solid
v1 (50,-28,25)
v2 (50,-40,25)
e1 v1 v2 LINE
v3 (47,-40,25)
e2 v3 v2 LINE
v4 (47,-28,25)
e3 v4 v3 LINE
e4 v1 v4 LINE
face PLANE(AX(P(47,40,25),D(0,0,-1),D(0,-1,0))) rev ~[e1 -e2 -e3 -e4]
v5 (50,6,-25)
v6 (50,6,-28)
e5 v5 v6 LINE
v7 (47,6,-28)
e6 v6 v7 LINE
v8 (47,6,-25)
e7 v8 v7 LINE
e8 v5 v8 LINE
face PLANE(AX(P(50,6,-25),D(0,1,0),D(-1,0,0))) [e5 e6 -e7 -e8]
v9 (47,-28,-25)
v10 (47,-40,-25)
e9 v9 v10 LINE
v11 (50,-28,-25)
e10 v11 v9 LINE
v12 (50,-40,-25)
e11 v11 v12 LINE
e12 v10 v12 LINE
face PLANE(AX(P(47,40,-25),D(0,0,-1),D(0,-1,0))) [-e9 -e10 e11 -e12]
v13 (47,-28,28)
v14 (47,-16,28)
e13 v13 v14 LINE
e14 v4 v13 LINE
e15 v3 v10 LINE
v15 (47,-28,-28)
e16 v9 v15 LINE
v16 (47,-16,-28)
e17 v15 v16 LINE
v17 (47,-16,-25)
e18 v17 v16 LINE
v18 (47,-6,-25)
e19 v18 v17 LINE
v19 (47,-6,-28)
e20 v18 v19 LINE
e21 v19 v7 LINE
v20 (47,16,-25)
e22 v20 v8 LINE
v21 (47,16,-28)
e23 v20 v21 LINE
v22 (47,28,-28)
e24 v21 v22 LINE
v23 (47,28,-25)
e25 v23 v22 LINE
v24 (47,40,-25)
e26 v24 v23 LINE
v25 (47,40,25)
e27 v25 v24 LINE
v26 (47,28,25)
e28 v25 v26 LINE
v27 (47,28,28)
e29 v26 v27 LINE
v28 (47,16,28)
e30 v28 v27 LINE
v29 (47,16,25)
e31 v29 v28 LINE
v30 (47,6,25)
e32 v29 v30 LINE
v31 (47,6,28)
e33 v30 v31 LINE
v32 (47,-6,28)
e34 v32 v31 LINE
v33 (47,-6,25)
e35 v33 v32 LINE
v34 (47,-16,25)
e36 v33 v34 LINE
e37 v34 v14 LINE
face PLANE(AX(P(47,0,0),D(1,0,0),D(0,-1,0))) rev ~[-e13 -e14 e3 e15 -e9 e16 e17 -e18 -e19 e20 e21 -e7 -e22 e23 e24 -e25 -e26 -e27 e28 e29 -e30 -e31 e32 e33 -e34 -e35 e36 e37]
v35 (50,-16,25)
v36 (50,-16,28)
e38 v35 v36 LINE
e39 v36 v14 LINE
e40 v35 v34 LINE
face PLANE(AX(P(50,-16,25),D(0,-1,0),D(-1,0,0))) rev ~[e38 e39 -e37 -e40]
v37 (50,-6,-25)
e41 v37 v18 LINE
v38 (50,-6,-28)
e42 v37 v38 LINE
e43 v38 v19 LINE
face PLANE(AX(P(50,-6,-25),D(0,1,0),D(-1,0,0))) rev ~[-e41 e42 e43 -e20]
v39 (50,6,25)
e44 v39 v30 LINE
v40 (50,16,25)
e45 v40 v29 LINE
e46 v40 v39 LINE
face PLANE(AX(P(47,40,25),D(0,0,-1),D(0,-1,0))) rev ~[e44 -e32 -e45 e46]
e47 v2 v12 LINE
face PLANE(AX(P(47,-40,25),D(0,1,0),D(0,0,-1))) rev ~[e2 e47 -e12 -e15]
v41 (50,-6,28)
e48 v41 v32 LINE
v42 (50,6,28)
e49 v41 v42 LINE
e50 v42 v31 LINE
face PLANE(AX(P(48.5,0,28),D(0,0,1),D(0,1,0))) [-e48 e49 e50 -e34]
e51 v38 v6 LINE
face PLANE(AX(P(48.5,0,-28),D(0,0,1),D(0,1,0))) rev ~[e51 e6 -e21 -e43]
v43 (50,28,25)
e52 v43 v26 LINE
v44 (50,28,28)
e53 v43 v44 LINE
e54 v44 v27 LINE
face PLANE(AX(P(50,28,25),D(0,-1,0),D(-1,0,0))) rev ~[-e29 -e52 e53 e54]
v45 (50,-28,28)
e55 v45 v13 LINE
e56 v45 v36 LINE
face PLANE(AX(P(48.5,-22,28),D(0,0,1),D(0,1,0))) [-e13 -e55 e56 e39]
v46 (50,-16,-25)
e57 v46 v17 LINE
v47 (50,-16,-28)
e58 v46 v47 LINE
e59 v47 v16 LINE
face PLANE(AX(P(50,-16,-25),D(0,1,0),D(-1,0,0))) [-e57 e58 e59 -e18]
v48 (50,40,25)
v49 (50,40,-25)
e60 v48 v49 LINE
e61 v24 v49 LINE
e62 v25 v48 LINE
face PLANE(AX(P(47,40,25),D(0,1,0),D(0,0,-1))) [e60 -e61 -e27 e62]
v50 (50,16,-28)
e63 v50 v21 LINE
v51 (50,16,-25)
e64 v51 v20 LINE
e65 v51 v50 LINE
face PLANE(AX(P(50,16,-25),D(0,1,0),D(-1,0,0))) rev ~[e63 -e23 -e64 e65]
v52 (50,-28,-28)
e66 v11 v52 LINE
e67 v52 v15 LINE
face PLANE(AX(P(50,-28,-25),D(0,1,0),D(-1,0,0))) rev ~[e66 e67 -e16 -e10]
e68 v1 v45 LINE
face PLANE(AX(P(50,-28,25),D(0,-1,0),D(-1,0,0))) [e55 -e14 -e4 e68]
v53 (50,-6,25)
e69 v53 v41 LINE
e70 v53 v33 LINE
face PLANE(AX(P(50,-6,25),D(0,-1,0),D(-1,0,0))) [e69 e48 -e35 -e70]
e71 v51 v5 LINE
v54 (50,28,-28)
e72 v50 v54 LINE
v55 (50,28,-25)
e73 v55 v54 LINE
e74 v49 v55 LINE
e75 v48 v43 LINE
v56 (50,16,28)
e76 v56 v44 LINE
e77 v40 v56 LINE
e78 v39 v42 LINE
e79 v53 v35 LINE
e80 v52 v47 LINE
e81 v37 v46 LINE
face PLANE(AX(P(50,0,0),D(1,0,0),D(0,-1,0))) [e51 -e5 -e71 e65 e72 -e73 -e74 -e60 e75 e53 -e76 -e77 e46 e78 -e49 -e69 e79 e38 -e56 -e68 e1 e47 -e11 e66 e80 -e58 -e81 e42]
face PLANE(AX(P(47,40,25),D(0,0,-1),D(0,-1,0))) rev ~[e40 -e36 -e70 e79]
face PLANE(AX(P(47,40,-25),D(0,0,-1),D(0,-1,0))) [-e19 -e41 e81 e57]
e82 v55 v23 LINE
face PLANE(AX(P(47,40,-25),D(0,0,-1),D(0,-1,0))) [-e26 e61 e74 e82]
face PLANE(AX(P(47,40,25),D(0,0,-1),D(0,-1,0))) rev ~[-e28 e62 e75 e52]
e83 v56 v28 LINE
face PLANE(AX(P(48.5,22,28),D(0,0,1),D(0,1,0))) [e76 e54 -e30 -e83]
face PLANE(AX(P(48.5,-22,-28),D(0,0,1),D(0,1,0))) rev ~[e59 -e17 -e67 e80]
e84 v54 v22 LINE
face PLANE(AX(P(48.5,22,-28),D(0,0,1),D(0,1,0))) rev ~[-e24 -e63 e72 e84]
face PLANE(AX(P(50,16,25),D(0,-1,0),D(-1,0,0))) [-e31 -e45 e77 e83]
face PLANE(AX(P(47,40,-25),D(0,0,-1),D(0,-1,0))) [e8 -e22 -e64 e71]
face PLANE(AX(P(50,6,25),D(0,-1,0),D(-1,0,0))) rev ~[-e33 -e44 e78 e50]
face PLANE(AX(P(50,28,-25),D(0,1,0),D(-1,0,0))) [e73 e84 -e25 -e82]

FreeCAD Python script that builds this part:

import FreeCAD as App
import Part
import Sketcher


def add_polygon(sketch, points):
    """Adds a closed chain of lines whose ends are joined by coincident constraints."""
    first, n = sketch.GeometryCount, len(points)
    for a, b in zip(points, points[1:] + points[:1]):
        sketch.addGeometry(Part.LineSegment(App.Vector(*a, 0), App.Vector(*b, 0)), False)
    for i in range(n):
        sketch.addConstraint(Sketcher.Constraint("Coincident", first + i, 2, first + (i + 1) % n, 1))

doc = App.newDocument("Part")
body = doc.addObject("PartDesign::Body", "Body")

# Sketch on YZ plane
sketch1 = body.newObject("Sketcher::SketchObject", "Sketch")
sketch1.AttachmentSupport = (doc.getObject("YZ_Plane"), [""])
sketch1.MapMode = "FlatFace"
sketch1.AttachmentOffset = App.Placement(App.Vector(0, 0, 47), App.Rotation())
add_polygon(sketch1, [(40, -25), (40, 25), (-40, 25), (-40, -25)])  # lines 0-3
sketch1.addConstraint([
    Sketcher.Constraint("Vertical", 0),
    Sketcher.Constraint("Horizontal", 1),
    Sketcher.Constraint("Vertical", 2),
    Sketcher.Constraint("Horizontal", 3),
    Sketcher.Constraint("Symmetric", 0, 2, 2, 2, -1, 1),
    Sketcher.Constraint("DistanceX", 1, 2, 1, 1, 80.0),
    Sketcher.Constraint("DistanceY", 0, 1, 0, 2, 50.0),
])
pad1 = body.newObject("PartDesign::Pad", "Pad")
pad1.Profile = sketch1
pad1.Length = 3

# Sketch on XY plane
sketch2 = body.newObject("Sketcher::SketchObject", "Sketch001")
sketch2.AttachmentSupport = (doc.getObject("XY_Plane"), [""])
sketch2.MapMode = "FlatFace"
sketch2.AttachmentOffset = App.Placement(App.Vector(0, 0, 25), App.Rotation())
add_polygon(sketch2, [(47, -28), (50, -28), (50, -16), (47, -16)])  # lines 0-3
sketch2.addConstraint([
    Sketcher.Constraint("Horizontal", 0),
    Sketcher.Constraint("Vertical", 1),
    Sketcher.Constraint("Horizontal", 2),
    Sketcher.Constraint("Vertical", 3),
    Sketcher.Constraint("DistanceX", 0, 1, 0, 2, 3.0),
    Sketcher.Constraint("DistanceY", 1, 1, 1, 2, 12.0),
    Sketcher.Constraint("DistanceX", -1, 1, 0, 2, 50.0),
    Sketcher.Constraint("DistanceY", 0, 2, -1, 1, 28.0),
])
pad2 = body.newObject("PartDesign::Pad", "Pad001")
pad2.Profile = sketch2
pad2.Length = 3

# Sketch on XY plane
sketch3 = body.newObject("Sketcher::SketchObject", "Sketch002")
sketch3.AttachmentSupport = (doc.getObject("XY_Plane"), [""])
sketch3.MapMode = "FlatFace"
sketch3.AttachmentOffset = App.Placement(App.Vector(0, 0, -25), App.Rotation())
add_polygon(sketch3, [(47, -28), (50, -28), (50, -16), (47, -16)])  # lines 0-3
sketch3.addConstraint([
    Sketcher.Constraint("Horizontal", 0),
    Sketcher.Constraint("Vertical", 1),
    Sketcher.Constraint("Horizontal", 2),
    Sketcher.Constraint("Vertical", 3),
    Sketcher.Constraint("DistanceX", 0, 1, 0, 2, 3.0),
    Sketcher.Constraint("DistanceY", 1, 1, 1, 2, 12.0),
    Sketcher.Constraint("DistanceX", -1, 1, 0, 2, 50.0),
    Sketcher.Constraint("DistanceY", 0, 2, -1, 1, 28.0),
])
pad3 = body.newObject("PartDesign::Pad", "Pad002")
pad3.Profile = sketch3
pad3.Length = 3
pad3.Reversed = True
doc.recompute()

linearpattern = body.newObject("PartDesign::LinearPattern", "LinearPattern")
linearpattern.Originals = [pad2, pad3]
linearpattern.Direction = (doc.getObject("Y_Axis"), [""])
linearpattern.Mode = "offset"
linearpattern.Offset = 22
linearpattern.Occurrences = 3
body.Tip = linearpattern

doc.recompute()
